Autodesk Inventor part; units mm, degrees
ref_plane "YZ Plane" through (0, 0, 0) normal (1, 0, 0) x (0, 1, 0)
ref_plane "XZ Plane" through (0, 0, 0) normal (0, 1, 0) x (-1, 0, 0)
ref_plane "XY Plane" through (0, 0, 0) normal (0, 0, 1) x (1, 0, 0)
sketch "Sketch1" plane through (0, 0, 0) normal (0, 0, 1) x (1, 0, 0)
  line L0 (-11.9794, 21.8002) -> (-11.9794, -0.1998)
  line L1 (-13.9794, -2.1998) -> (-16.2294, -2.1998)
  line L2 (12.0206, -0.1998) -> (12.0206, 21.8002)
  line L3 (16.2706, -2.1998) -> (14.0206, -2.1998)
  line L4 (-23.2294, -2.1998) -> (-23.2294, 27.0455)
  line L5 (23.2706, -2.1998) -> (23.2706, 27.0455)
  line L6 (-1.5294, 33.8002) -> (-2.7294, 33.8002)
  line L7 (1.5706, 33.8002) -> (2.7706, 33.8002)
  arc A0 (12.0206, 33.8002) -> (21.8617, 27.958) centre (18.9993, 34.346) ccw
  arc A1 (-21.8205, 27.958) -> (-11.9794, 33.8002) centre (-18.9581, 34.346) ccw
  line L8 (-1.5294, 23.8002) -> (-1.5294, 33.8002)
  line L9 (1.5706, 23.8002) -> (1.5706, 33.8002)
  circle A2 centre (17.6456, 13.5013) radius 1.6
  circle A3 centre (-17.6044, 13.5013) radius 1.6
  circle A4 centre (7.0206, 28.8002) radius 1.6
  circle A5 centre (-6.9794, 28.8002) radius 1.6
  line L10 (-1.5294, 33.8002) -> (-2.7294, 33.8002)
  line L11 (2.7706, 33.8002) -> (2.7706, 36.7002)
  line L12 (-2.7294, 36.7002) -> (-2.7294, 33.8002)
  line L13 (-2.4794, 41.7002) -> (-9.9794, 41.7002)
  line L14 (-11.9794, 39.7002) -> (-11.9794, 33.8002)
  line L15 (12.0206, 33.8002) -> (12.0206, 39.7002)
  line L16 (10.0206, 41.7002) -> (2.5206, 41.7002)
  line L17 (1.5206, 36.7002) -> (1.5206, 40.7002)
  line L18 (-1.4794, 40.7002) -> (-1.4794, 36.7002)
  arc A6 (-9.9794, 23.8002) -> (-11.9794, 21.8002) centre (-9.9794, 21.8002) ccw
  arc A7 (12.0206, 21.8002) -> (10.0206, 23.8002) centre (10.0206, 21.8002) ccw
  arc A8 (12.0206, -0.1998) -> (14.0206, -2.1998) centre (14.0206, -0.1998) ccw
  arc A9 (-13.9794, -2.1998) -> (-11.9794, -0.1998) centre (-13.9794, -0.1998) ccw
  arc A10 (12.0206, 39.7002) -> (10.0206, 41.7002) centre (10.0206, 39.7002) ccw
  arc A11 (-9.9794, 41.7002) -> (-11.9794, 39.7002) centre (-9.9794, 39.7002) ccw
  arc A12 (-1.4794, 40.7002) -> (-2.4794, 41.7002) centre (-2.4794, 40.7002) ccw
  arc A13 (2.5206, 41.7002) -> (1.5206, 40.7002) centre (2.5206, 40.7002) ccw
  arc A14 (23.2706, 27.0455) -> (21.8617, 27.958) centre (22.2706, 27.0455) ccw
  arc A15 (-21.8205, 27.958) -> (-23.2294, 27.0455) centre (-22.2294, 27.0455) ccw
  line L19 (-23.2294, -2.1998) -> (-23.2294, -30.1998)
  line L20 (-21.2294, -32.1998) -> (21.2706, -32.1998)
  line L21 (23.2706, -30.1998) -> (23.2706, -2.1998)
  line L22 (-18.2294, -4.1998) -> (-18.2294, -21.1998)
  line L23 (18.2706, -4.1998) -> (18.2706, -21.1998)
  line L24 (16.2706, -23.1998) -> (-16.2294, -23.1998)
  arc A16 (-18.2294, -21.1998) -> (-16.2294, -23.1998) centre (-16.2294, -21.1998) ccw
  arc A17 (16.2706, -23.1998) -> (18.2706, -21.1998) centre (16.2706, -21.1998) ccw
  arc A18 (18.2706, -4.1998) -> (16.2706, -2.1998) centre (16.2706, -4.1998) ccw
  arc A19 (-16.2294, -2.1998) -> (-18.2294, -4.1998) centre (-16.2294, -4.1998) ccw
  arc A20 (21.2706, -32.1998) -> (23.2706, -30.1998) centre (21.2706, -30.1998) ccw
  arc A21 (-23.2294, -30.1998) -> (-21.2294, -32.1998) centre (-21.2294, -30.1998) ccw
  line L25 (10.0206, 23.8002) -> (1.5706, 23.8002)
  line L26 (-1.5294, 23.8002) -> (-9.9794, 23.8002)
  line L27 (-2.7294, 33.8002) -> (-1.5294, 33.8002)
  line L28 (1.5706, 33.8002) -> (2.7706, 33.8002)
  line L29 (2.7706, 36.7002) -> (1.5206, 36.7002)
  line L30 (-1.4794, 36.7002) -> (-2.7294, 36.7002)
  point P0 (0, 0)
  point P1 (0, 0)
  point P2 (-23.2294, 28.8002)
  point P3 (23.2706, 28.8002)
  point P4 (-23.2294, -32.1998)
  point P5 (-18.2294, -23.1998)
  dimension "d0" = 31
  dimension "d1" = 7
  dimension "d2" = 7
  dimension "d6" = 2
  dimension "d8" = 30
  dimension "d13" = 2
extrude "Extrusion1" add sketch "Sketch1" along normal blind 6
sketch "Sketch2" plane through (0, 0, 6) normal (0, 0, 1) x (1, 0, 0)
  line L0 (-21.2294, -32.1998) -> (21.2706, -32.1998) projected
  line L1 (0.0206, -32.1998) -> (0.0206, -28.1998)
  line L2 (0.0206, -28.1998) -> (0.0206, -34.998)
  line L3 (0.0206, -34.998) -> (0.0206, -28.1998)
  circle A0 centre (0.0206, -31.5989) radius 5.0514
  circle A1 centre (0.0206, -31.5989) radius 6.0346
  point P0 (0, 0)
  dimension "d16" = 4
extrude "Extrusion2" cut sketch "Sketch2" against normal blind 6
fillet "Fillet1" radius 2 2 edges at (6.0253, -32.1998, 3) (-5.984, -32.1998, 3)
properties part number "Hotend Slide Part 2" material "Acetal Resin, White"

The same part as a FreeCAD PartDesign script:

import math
import FreeCAD as App
import Part
import Sketcher

V = App.Vector


def edges_at(feature, points):
    """Names of the edges that pass closest to the given points."""
    edges = feature.Shape.Edges
    near = lambda p: min(range(len(edges)), key=lambda i: edges[i].distToShape(Part.Vertex(*p))[0])
    return sorted({f"Edge{near(p) + 1}" for p in points})

doc = App.newDocument("Part")
body = doc.addObject("PartDesign::Body", "Body")

# Sketch on XY plane
sketch1 = body.newObject("Sketcher::SketchObject", "Sketch")
sketch1.AttachmentSupport = (doc.getObject("XY_Plane"), [""])
sketch1.MapMode = "FlatFace"
sketch1.addGeometry([
    Part.LineSegment(V(-12, -0.2, 0), V(-12, 21.8, 0)),  # 0
    Part.ArcOfCircle(Part.Circle(V(-10, 21.8, 0), V(0, 0, 1), 2), math.radians(90), math.radians(180)),  # 1
    Part.LineSegment(V(-10, 23.8, 0), V(-1.5, 23.8, 0)),  # 2
    Part.LineSegment(V(-1.5, 23.8, 0), V(-1.5, 33.8, 0)),  # 3
    Part.LineSegment(V(-1.5, 33.8, 0), V(-2.7, 33.8, 0)),  # 4
    Part.LineSegment(V(-2.7, 33.8, 0), V(-2.7, 36.7, 0)),  # 5
    Part.LineSegment(V(-2.7, 36.7, 0), V(-1.5, 36.7, 0)),  # 6
    Part.LineSegment(V(-1.5, 36.7, 0), V(-1.5, 40.7, 0)),  # 7
    Part.ArcOfCircle(Part.Circle(V(-2.5, 40.7, 0), V(0, 0, 1), 1), math.radians(0), math.radians(90)),  # 8
    Part.LineSegment(V(-2.5, 41.7, 0), V(-10, 41.7, 0)),  # 9
    Part.ArcOfCircle(Part.Circle(V(-10, 39.7, 0), V(0, 0, 1), 2), math.radians(90), math.radians(180)),  # 10
    Part.LineSegment(V(-12, 39.7, 0), V(-12, 33.8, 0)),  # 11
    Part.ArcOfCircle(Part.Circle(V(-19, 34.3, 0), V(0, 0, 1), 7), math.radians(-114), math.radians(-4)),  # 12
    Part.ArcOfCircle(Part.Circle(V(-22.2, 27, 0), V(0, 0, 1), 1), math.radians(66), math.radians(180)),  # 13
    Part.LineSegment(V(-23.2, 27, 0), V(-23.2, -30.2, 0)),  # 14
    Part.ArcOfCircle(Part.Circle(V(-21.2, -30.2, 0), V(0, 0, 1), 2), math.radians(180), math.radians(270)),  # 15
    Part.LineSegment(V(-21.2, -32.2, 0), V(21.3, -32.2, 0)),  # 16
    Part.ArcOfCircle(Part.Circle(V(21.3, -30.2, 0), V(0, 0, 1), 2), math.radians(-90), math.radians(0)),  # 17
    Part.LineSegment(V(23.3, -30.2, 0), V(23.3, 27, 0)),  # 18
    Part.ArcOfCircle(Part.Circle(V(22.3, 27, 0), V(0, 0, 1), 1), math.radians(0), math.radians(114)),  # 19
    Part.ArcOfCircle(Part.Circle(V(19, 34.3, 0), V(0, 0, 1), 7), math.radians(-176), math.radians(-66)),  # 20
    Part.LineSegment(V(12, 33.8, 0), V(12, 39.7, 0)),  # 21
    Part.ArcOfCircle(Part.Circle(V(10, 39.7, 0), V(0, 0, 1), 2), math.radians(0), math.radians(90)),  # 22
    Part.LineSegment(V(10, 41.7, 0), V(2.5, 41.7, 0)),  # 23
    Part.ArcOfCircle(Part.Circle(V(2.5, 40.7, 0), V(0, 0, 1), 1), math.radians(90), math.radians(180)),  # 24
    Part.LineSegment(V(1.5, 40.7, 0), V(1.5, 36.7, 0)),  # 25
    Part.LineSegment(V(1.5, 36.7, 0), V(2.8, 36.7, 0)),  # 26
    Part.LineSegment(V(2.8, 36.7, 0), V(2.8, 33.8, 0)),  # 27
    Part.LineSegment(V(2.8, 33.8, 0), V(1.6, 33.8, 0)),  # 28
    Part.LineSegment(V(1.6, 33.8, 0), V(1.6, 23.8, 0)),  # 29
    Part.LineSegment(V(1.6, 23.8, 0), V(10, 23.8, 0)),  # 30
    Part.ArcOfCircle(Part.Circle(V(10, 21.8, 0), V(0, 0, 1), 2), math.radians(0), math.radians(90)),  # 31
    Part.LineSegment(V(12, 21.8, 0), V(12, -0.2, 0)),  # 32
    Part.ArcOfCircle(Part.Circle(V(14, -0.2, 0), V(0, 0, 1), 2), math.radians(180), math.radians(270)),  # 33
    Part.LineSegment(V(14, -2.2, 0), V(16.3, -2.2, 0)),  # 34
    Part.ArcOfCircle(Part.Circle(V(16.3, -4.2, 0), V(0, 0, 1), 2), math.radians(0), math.radians(90)),  # 35
    Part.LineSegment(V(18.3, -4.2, 0), V(18.3, -21.2, 0)),  # 36
    Part.ArcOfCircle(Part.Circle(V(16.3, -21.2, 0), V(0, 0, 1), 2), math.radians(-90), math.radians(0)),  # 37
    Part.LineSegment(V(16.3, -23.2, 0), V(-16.2, -23.2, 0)),  # 38
    Part.ArcOfCircle(Part.Circle(V(-16.2, -21.2, 0), V(0, 0, 1), 2), math.radians(180), math.radians(270)),  # 39
    Part.LineSegment(V(-18.2, -21.2, 0), V(-18.2, -4.2, 0)),  # 40
    Part.ArcOfCircle(Part.Circle(V(-16.2, -4.2, 0), V(0, 0, 1), 2), math.radians(90), math.radians(180)),  # 41
    Part.LineSegment(V(-16.2, -2.2, 0), V(-14, -2.2, 0)),  # 42
    Part.ArcOfCircle(Part.Circle(V(-14, -0.2, 0), V(0, 0, 1), 2), math.radians(-90), math.radians(0)),  # 43
    Part.Circle(V(-17.6, 13.5, 0), V(0, 0, 1), 1.6),  # 44
    Part.Circle(V(-7, 28.8, 0), V(0, 0, 1), 1.6),  # 45
    Part.Circle(V(17.6, 13.5, 0), V(0, 0, 1), 1.6),  # 46
    Part.Circle(V(7, 28.8, 0), V(0, 0, 1), 1.6),  # 47
], False)
sketch1.addConstraint([
    Sketcher.Constraint("Tangent", 0, 2, 1, 2),
    Sketcher.Constraint("Tangent", 1, 1, 2, 1),
    Sketcher.Constraint("Coincident", 2, 2, 3, 1),
    Sketcher.Constraint("Coincident", 3, 2, 4, 1),
    Sketcher.Constraint("Coincident", 4, 2, 5, 1),
    Sketcher.Constraint("Coincident", 5, 2, 6, 1),
    Sketcher.Constraint("Coincident", 6, 2, 7, 1),
    Sketcher.Constraint("Tangent", 7, 2, 8, 1),
    Sketcher.Constraint("Tangent", 8, 2, 9, 1),
    Sketcher.Constraint("Tangent", 9, 2, 10, 1),
    Sketcher.Constraint("Tangent", 10, 2, 11, 1),
    Sketcher.Constraint("Coincident", 11, 2, 12, 2),
    Sketcher.Constraint("Tangent", 12, 1, 13, 1),
    Sketcher.Constraint("Tangent", 13, 2, 14, 1),
    Sketcher.Constraint("Tangent", 14, 2, 15, 1),
    Sketcher.Constraint("Tangent", 15, 2, 16, 1),
    Sketcher.Constraint("Tangent", 16, 2, 17, 1),
    Sketcher.Constraint("Tangent", 17, 2, 18, 1),
    Sketcher.Constraint("Tangent", 18, 2, 19, 1),
    Sketcher.Constraint("Tangent", 19, 2, 20, 2),
    Sketcher.Constraint("Coincident", 20, 1, 21, 1),
    Sketcher.Constraint("Tangent", 21, 2, 22, 1),
    Sketcher.Constraint("Tangent", 22, 2, 23, 1),
    Sketcher.Constraint("Tangent", 23, 2, 24, 1),
    Sketcher.Constraint("Tangent", 24, 2, 25, 1),
    Sketcher.Constraint("Coincident", 25, 2, 26, 1),
    Sketcher.Constraint("Coincident", 26, 2, 27, 1),
    Sketcher.Constraint("Coincident", 27, 2, 28, 1),
    Sketcher.Constraint("Coincident", 28, 2, 29, 1),
    Sketcher.Constraint("Coincident", 29, 2, 30, 1),
    Sketcher.Constraint("Tangent", 30, 2, 31, 2),
    Sketcher.Constraint("Tangent", 31, 1, 32, 1),
    Sketcher.Constraint("Tangent", 32, 2, 33, 1),
    Sketcher.Constraint("Tangent", 33, 2, 34, 1),
    Sketcher.Constraint("Tangent", 34, 2, 35, 2),
    Sketcher.Constraint("Tangent", 35, 1, 36, 1),
    Sketcher.Constraint("Tangent", 36, 2, 37, 2),
    Sketcher.Constraint("Tangent", 37, 1, 38, 1),
    Sketcher.Constraint("Tangent", 38, 2, 39, 2),
    Sketcher.Constraint("Tangent", 39, 1, 40, 1),
    Sketcher.Constraint("Tangent", 40, 2, 41, 2),
    Sketcher.Constraint("Tangent", 41, 1, 42, 1),
    Sketcher.Constraint("Tangent", 42, 2, 43, 1),
    Sketcher.Constraint("Tangent", 43, 2, 0, 1),
    Sketcher.Constraint("Vertical", 0),
    Sketcher.Constraint("Horizontal", 2),
    Sketcher.Constraint("Vertical", 3),
    Sketcher.Constraint("Horizontal", 4),
    Sketcher.Constraint("Vertical", 5),
    Sketcher.Constraint("Horizontal", 6),
    Sketcher.Constraint("Vertical", 7),
    Sketcher.Constraint("Horizontal", 9),
    Sketcher.Constraint("Vertical", 11),
    Sketcher.Constraint("Vertical", 14),
    Sketcher.Constraint("Horizontal", 16),
    Sketcher.Constraint("Vertical", 18),
    Sketcher.Constraint("Vertical", 21),
    Sketcher.Constraint("Horizontal", 23),
    Sketcher.Constraint("Vertical", 25),
    Sketcher.Constraint("Horizontal", 26),
    Sketcher.Constraint("Vertical", 27),
    Sketcher.Constraint("Horizontal", 28),
    Sketcher.Constraint("Vertical", 29),
    Sketcher.Constraint("Horizontal", 30),
    Sketcher.Constraint("Vertical", 32),
    Sketcher.Constraint("Horizontal", 34),
    Sketcher.Constraint("Vertical", 36),
    Sketcher.Constraint("Horizontal", 38),
    Sketcher.Constraint("Vertical", 40),
    Sketcher.Constraint("Horizontal", 42),
    Sketcher.Constraint("Equal", 1, 10),
    Sketcher.Constraint("Equal", 8, 13),
    Sketcher.Constraint("Equal", 10, 15),
    Sketcher.Constraint("Equal", 15, 17),
    Sketcher.Constraint("Equal", 13, 19),
    Sketcher.Constraint("Equal", 12, 20),
    Sketcher.Constraint("Equal", 17, 22),
    Sketcher.Constraint("Equal", 19, 24),
    Sketcher.Constraint("Equal", 22, 31),
    Sketcher.Constraint("Equal", 31, 33),
    Sketcher.Constraint("Equal", 33, 35),
    Sketcher.Constraint("Equal", 35, 37),
    Sketcher.Constraint("Equal", 37, 39),
    Sketcher.Constraint("Equal", 39, 41),
    Sketcher.Constraint("Equal", 41, 43),
    Sketcher.Constraint("Equal", 44, 45),
    Sketcher.Constraint("Equal", 45, 46),
    Sketcher.Constraint("Equal", 46, 47),
    Sketcher.Constraint("Horizontal", 13, 3, 19, 3),
    Sketcher.Constraint("Horizontal", 12, 3, 20, 3),
    Sketcher.Constraint("Horizontal", 10, 3, 22, 3),
    Sketcher.Constraint("Horizontal", 1, 3, 31, 3),
    Sketcher.Constraint("Horizontal", 35, 3, 41, 3),
    Sketcher.Constraint("Horizontal", 44, 3, 46, 3),
    Sketcher.Constraint("Horizontal", 45, 3, 47, 3),
    Sketcher.Constraint("Horizontal", 4, 2, 11, 2),
    Sketcher.Constraint("Horizontal", 11, 2, 20, 1),
    Sketcher.Constraint("Horizontal", 6, 2, 25, 2),
    Sketcher.Constraint("Horizontal", 20, 1, 27, 2),
    Sketcher.Constraint("Vertical", 1, 3, 10, 3),
    Sketcher.Constraint("Vertical", 22, 3, 31, 3),
    Sketcher.Constraint("Equal", 9, 23),
    Sketcher.Constraint("Equal", 6, 26),
    Sketcher.Constraint("Equal", 4, 28),
    Sketcher.Constraint("Equal", 34, 42),
    Sketcher.Constraint("Radius", 1, 2.0),
    Sketcher.Constraint("Radius", 8, 1.0),
    Sketcher.Constraint("Radius", 12, 7.0),
    Sketcher.Constraint("Diameter", 44, 3.2),
    Sketcher.Constraint("DistanceY", 0, 1, 0, 2, 22.0),
    Sketcher.Constraint("DistanceY", 3, 1, 3, 2, 10.0),
    Sketcher.Constraint("DistanceY", 7, 1, 7, 2, 4.0),
    Sketcher.Constraint("DistanceY", 36, 2, 36, 1, 17.0),
    Sketcher.Constraint("DistanceX", 4, 2, 4, 1, 1.2),
    Sketcher.Constraint("DistanceX", 9, 2, 9, 1, 7.5),
    Sketcher.Constraint("DistanceX", 16, 1, 16, 2, 42.5),
    Sketcher.Constraint("DistanceX", 38, 2, 38, 1, 32.5),
    Sketcher.Constraint("DistanceY", 5, 1, 5, 2, 2.9),
    Sketcher.Constraint("DistanceX", 2, 1, 2, 2, 8.45),
    Sketcher.Constraint("DistanceX", 34, 1, 34, 2, 2.25),
    Sketcher.Constraint("DistanceY", 14, 2, 14, 1, 57.2453),
    Sketcher.Constraint("DistanceX", 12, 3, -1, 1, 18.958),
    Sketcher.Constraint("DistanceY", -1, 1, 12, 3, 34.346),
    Sketcher.Constraint("DistanceY", -1, 1, 19, 2, 27.958),
    Sketcher.Constraint("DistanceX", 44, 3, -1, 1, 17.6044),
    Sketcher.Constraint("DistanceY", -1, 1, 44, 3, 13.5013),
    Sketcher.Constraint("DistanceX", 45, 3, -1, 1, 6.9794),
    Sketcher.Constraint("DistanceY", -1, 1, 45, 3, 28.8002),
    Sketcher.Constraint("DistanceX", -1, 1, 46, 3, 17.6456),
    Sketcher.Constraint("DistanceX", -1, 1, 47, 3, 7.0206),
])
pad1 = body.newObject("PartDesign::Pad", "Pad")
pad1.Profile = sketch1
pad1.Length = 6

# Sketch on XY plane
sketch2 = body.newObject("Sketcher::SketchObject", "Sketch001")
sketch2.AttachmentSupport = (doc.getObject("XY_Plane"), [""])
sketch2.MapMode = "FlatFace"
sketch2.AttachmentOffset = App.Placement(V(0, 0, 6), App.Rotation())
sketch2.addGeometry(Part.Circle(V(0, -32, 0), V(0, 0, 1), 6), False)
sketch2.addConstraint([
    Sketcher.Constraint("Diameter", 0, 12.0692),
    Sketcher.Constraint("DistanceY", 0, 3, -1, 1, 31.599),
    Sketcher.Constraint("DistanceX", -1, 1, 0, 3, 0.0206),
])
pocket1 = body.newObject("PartDesign::Pocket", "Pocket")
pocket1.Profile = sketch2
pocket1.Length = 6
doc.recompute()

fillet = body.newObject("PartDesign::Fillet", "Fillet")
fillet.Base = (pocket1, edges_at(pocket1, [(6.025, -32.2, 3), (-5.984, -32.2, 3)]))
fillet.Radius = 2

doc.recompute()
